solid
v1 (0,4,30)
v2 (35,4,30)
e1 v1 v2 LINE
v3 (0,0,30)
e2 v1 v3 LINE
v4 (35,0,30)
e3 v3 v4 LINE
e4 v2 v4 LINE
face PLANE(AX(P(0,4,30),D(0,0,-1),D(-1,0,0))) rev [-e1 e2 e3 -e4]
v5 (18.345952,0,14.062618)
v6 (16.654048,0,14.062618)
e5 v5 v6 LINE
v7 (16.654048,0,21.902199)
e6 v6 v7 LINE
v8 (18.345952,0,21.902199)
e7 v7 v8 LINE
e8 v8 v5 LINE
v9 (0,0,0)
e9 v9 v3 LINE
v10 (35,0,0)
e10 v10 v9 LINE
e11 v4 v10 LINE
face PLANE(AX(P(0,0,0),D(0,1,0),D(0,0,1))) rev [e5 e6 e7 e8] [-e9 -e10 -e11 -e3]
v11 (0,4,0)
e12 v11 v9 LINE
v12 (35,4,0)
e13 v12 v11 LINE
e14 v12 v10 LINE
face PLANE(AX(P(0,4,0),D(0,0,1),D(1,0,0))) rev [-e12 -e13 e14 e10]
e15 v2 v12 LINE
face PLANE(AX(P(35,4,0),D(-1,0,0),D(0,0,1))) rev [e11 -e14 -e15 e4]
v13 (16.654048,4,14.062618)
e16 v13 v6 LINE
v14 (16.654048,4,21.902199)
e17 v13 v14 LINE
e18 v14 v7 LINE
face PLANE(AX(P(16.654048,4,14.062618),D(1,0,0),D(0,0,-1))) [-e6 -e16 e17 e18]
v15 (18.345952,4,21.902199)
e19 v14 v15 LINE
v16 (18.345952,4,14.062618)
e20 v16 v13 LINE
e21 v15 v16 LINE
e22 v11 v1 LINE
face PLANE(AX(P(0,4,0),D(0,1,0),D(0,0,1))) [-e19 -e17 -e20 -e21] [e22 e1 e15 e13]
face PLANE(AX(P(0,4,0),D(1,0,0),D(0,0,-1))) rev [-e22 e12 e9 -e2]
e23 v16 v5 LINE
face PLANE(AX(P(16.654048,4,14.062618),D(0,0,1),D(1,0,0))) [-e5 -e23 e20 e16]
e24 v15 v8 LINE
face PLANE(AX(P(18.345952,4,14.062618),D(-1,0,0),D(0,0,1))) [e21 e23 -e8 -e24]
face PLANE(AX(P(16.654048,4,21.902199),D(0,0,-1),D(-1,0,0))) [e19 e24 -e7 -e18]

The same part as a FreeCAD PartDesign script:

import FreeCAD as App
import Part
import Sketcher

V = App.Vector


def add_polygon(sketch, points):
    """Adds a closed chain of lines whose ends are joined by coincident constraints."""
    first, n = sketch.GeometryCount, len(points)
    for a, b in zip(points, points[1:] + points[:1]):
        sketch.addGeometry(Part.LineSegment(App.Vector(*a, 0), App.Vector(*b, 0)), False)
    for i in range(n):
        sketch.addConstraint(Sketcher.Constraint("Coincident", first + i, 2, first + (i + 1) % n, 1))

doc = App.newDocument("Part")
params = doc.addObject("Spreadsheet::Sheet", "Params")
for row, (alias, value) in enumerate([
    ("sketch1_width", "35 mm"),
    ("sketch1_height", "30 mm"),
    ("pad1_length", "4 mm"),
], start=1):
    params.set(f"A{row}", alias)
    params.set(f"B{row}", "=" + value)
    params.setAlias(f"B{row}", alias)

body = doc.addObject("PartDesign::Body", "Body")

# Sketch on XZ plane
sketch1 = doc.addObject("Sketcher::SketchObject", "Sketch")
body.addObject(sketch1)
sketch1.AttachmentSupport = (doc.XZ_Plane, [""])
sketch1.MapMode = "FlatFace"
add_polygon(sketch1, [(0, 0), (0, 30), (35, 30), (35, 0)])  # lines 0-3
add_polygon(sketch1, [(18.3, 21.9), (16.7, 21.9), (16.7, 14.1), (18.3, 14.1)])  # lines 4-7
sketch1.addConstraint([
    Sketcher.Constraint("Vertical", 0),
    Sketcher.Constraint("Horizontal", 1),
    Sketcher.Constraint("Vertical", 2),
    Sketcher.Constraint("Horizontal", 3),
    Sketcher.Constraint("Horizontal", 4),
    Sketcher.Constraint("Vertical", 5),
    Sketcher.Constraint("Horizontal", 6),
    Sketcher.Constraint("Vertical", 7),
    Sketcher.Constraint("Coincident", 3, 2, -1, 1),
    Sketcher.Constraint("DistanceX", 1, 1, 1, 2, 35.0),
    Sketcher.Constraint("DistanceY", 0, 1, 0, 2, 30.0),
    Sketcher.Constraint("DistanceY", 5, 2, 5, 1, 7.839581),
    Sketcher.Constraint("DistanceY", -1, 1, 4, 2, 21.902199),
    Sketcher.Constraint("DistanceX", 4, 2, 4, 1, 1.691904),
    Sketcher.Constraint("DistanceX", -1, 1, 4, 2, 16.654048),
])
sketch1.setExpression("Constraints[17]", "Params.sketch1_width")
sketch1.setExpression("Constraints[18]", "Params.sketch1_height")
pad1 = doc.addObject("PartDesign::Pad", "Pad")
body.addObject(pad1)
pad1.Profile = sketch1
pad1.setExpression("Length", "Params.pad1_length")
pad1.Reversed = True

doc.recompute()
